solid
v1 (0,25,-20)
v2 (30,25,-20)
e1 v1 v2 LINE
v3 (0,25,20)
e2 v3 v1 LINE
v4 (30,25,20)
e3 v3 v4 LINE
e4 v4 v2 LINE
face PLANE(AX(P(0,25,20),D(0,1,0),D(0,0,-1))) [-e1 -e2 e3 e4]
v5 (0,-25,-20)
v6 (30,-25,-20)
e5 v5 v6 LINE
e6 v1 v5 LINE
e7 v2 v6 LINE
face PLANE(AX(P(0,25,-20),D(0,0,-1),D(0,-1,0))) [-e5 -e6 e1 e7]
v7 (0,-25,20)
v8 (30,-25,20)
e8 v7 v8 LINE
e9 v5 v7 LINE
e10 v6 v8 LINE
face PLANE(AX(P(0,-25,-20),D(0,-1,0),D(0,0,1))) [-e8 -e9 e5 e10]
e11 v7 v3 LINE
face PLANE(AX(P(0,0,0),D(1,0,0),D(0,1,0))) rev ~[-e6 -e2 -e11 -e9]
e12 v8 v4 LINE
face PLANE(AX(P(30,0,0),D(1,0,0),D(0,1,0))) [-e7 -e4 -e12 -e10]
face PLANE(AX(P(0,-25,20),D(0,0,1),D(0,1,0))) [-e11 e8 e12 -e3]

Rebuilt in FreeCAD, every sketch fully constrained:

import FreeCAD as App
import Part
import Sketcher

V = App.Vector
Q = App.Units.Quantity


def add_polygon(sketch, points):
    """Adds a closed chain of lines whose ends are joined by coincident constraints."""
    first, n = sketch.GeometryCount, len(points)
    for a, b in zip(points, points[1:] + points[:1]):
        sketch.addGeometry(Part.LineSegment(App.Vector(*a, 0), App.Vector(*b, 0)), False)
    for i in range(n):
        sketch.addConstraint(Sketcher.Constraint("Coincident", first + i, 2, first + (i + 1) % n, 1))

doc = App.newDocument("Part")
params = doc.addObject("Spreadsheet::Sheet", "Params")
for row, (alias, value) in enumerate([
    ("sketch1_width", "50 mm"),
    ("sketch1_height", "40 mm"),
    ("pad1_length", "30 mm"),
], start=1):
    params.set(f"A{row}", alias)
    params.set(f"B{row}", "=" + value)
    params.setAlias(f"B{row}", alias)

body = doc.addObject("PartDesign::Body", "Body")

sketch1 = body.newObject("Sketcher::SketchObject", "Sketch")
sketch1.AttachmentSupport = (doc.getObject("YZ_Plane"), [""])
sketch1.MapMode = "FlatFace"
add_polygon(sketch1, [(25, 20), (-25, 20), (-25, -20), (25, -20)])
sketch1.addConstraint([
    Sketcher.Constraint("Horizontal", 0),
    Sketcher.Constraint("Vertical", 1),
    Sketcher.Constraint("Horizontal", 2),
    Sketcher.Constraint("Vertical", 3),
    Sketcher.Constraint("Symmetric", 0, 2, 2, 2, -1, 1),
    Sketcher.Constraint("DistanceX", 0, 2, 0, 1, Q("50 mm")),
    Sketcher.Constraint("DistanceY", 1, 2, 1, 1, Q("40 mm")),
])
sketch1.setExpression("Constraints[9]", "Params.sketch1_width")
sketch1.setExpression("Constraints[10]", "Params.sketch1_height")
pad1 = body.newObject("PartDesign::Pad", "Pad")
pad1.Profile = sketch1
pad1.setExpression("Length", "Params.pad1_length")

doc.recompute()
